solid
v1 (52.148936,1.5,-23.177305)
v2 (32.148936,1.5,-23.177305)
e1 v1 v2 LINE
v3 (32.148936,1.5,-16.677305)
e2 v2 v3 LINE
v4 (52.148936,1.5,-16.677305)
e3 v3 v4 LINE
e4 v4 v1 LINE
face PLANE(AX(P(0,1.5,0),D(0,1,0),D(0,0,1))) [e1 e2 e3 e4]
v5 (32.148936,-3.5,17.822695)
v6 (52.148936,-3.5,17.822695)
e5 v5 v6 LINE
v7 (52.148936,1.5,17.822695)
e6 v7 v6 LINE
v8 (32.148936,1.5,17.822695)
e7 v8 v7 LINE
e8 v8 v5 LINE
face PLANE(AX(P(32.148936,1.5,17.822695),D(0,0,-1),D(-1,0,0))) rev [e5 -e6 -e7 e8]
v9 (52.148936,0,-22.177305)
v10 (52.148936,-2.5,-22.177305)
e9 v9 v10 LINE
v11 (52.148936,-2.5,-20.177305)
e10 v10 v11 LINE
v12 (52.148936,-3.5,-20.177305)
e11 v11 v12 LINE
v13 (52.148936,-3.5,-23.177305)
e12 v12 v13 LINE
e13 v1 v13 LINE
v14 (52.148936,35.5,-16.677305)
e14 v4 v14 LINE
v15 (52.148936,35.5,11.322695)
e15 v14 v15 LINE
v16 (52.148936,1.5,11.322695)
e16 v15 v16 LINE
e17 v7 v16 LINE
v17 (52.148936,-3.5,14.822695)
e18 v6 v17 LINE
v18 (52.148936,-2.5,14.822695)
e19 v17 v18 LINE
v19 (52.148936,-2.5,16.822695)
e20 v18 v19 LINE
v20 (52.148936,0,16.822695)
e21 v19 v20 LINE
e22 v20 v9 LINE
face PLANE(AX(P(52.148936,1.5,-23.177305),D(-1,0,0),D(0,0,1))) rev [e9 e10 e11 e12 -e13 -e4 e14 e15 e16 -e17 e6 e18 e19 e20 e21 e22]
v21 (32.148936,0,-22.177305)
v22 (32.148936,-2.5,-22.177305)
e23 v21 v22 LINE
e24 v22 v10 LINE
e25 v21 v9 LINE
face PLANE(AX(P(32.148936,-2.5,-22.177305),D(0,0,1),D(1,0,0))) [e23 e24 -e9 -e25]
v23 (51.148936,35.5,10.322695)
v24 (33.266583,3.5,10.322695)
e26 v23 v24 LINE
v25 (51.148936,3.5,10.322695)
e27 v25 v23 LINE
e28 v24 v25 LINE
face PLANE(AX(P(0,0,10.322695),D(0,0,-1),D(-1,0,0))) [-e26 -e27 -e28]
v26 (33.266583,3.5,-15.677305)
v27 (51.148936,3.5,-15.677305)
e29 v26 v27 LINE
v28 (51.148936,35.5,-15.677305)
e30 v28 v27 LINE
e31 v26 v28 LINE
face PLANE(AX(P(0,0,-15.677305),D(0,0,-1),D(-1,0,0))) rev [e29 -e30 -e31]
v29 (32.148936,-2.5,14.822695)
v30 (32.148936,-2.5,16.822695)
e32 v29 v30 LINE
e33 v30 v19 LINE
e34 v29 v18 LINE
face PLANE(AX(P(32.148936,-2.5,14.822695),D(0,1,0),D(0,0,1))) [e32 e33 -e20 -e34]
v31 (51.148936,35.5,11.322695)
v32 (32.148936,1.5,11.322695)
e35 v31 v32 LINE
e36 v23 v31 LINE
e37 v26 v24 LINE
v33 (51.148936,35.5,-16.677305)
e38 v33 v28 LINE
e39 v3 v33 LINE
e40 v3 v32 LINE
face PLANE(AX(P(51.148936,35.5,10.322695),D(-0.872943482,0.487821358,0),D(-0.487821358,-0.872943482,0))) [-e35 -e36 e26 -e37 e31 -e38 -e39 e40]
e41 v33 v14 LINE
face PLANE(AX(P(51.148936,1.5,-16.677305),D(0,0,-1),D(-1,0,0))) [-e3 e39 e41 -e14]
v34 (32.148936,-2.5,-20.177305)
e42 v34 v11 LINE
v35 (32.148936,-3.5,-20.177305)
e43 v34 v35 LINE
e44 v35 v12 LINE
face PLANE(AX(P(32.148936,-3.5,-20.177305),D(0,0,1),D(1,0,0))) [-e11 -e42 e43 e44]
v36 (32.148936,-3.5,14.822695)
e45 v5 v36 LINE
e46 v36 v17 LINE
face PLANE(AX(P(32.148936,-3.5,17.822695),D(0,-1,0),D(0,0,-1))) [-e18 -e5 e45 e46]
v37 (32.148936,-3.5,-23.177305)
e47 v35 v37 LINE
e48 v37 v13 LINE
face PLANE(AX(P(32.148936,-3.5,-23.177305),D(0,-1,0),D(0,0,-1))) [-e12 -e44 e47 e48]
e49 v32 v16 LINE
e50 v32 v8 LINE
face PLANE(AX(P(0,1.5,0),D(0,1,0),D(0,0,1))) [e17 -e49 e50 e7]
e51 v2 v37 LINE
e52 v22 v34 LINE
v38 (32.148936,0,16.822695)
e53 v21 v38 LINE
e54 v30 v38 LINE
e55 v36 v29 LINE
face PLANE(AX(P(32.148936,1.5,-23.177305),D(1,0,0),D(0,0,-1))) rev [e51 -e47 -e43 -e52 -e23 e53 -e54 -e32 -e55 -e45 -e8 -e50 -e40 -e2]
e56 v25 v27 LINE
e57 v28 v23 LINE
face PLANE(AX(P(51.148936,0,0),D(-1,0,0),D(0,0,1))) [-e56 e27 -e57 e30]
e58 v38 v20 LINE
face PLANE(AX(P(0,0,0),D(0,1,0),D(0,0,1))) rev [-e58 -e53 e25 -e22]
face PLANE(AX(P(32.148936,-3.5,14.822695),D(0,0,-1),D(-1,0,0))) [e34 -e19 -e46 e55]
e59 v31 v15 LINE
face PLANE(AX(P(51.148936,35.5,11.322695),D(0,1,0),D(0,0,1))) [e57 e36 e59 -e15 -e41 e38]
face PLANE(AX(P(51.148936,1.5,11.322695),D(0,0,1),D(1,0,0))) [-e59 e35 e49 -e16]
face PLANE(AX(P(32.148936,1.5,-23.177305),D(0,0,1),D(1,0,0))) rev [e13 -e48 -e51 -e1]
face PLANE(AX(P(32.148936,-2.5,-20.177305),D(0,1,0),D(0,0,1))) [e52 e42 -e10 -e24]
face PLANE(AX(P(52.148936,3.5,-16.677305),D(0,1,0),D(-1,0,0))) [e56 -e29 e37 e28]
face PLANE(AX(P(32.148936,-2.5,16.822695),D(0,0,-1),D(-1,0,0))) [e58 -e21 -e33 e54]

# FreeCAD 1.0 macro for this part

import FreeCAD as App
import Part
import Sketcher

V = App.Vector


def add_polygon(sketch, points):
    """Adds a closed chain of lines whose ends are joined by coincident constraints."""
    first, n = sketch.GeometryCount, len(points)
    for a, b in zip(points, points[1:] + points[:1]):
        sketch.addGeometry(Part.LineSegment(App.Vector(*a, 0), App.Vector(*b, 0)), False)
    for i in range(n):
        sketch.addConstraint(Sketcher.Constraint("Coincident", first + i, 2, first + (i + 1) % n, 1))

doc = App.newDocument("Part")
body = doc.addObject("PartDesign::Body", "Body")

sketch1 = body.newObject("Sketcher::SketchObject", "Sketch")
sketch1.AttachmentSupport = (doc.getObject("XZ_Plane"), [""])
sketch1.MapMode = "FlatFace"
add_polygon(sketch1, [(32, -23), (32, 18), (52, 18), (52, -23)])
sketch1.addConstraint(Sketcher.Constraint("Vertical", 0))
sketch1.addConstraint(Sketcher.Constraint("Horizontal", 1))
sketch1.addConstraint(Sketcher.Constraint("Vertical", 2))
sketch1.addConstraint(Sketcher.Constraint("Horizontal", 3))
sketch1.addConstraint(Sketcher.Constraint("DistanceX", 1, 1, 1, 2, 20.0))
sketch1.addConstraint(Sketcher.Constraint("DistanceY", 0, 1, 0, 2, 41.0))
sketch1.addConstraint(Sketcher.Constraint("DistanceX", -1, 1, 0, 2, 32.148936))
sketch1.addConstraint(Sketcher.Constraint("DistanceY", -1, 1, 0, 2, 17.822695))
pad1 = body.newObject("PartDesign::Pad", "Pad")
pad1.Profile = sketch1
pad1.Length = 1.5
pad1.Reversed = True

sketch2 = body.newObject("Sketcher::SketchObject", "Sketch001")
sketch2.AttachmentSupport = (doc.getObject("YZ_Plane"), [""])
sketch2.MapMode = "FlatFace"
sketch2.AttachmentOffset = App.Placement(V(0, 0, 52.148936), App.Rotation())
add_polygon(sketch2, [(0, 17.8), (-3.5, 17.8), (-3.5, 14.8), (-2.5, 14.8), (-2.5, 16.8), (0, 16.8)])
add_polygon(sketch2, [(0, -22.2), (-2.5, -22.2), (-2.5, -20.2), (-3.5, -20.2), (-3.5, -23.2), (0, -23.2)])
sketch2.addConstraint(Sketcher.Constraint("Horizontal", 0))
sketch2.addConstraint(Sketcher.Constraint("Vertical", 1))
sketch2.addConstraint(Sketcher.Constraint("Horizontal", 2))
sketch2.addConstraint(Sketcher.Constraint("Vertical", 3))
sketch2.addConstraint(Sketcher.Constraint("Horizontal", 4))
sketch2.addConstraint(Sketcher.Constraint("Vertical", 5))
sketch2.addConstraint(Sketcher.Constraint("Horizontal", 6))
sketch2.addConstraint(Sketcher.Constraint("Vertical", 7))
sketch2.addConstraint(Sketcher.Constraint("Horizontal", 8))
sketch2.addConstraint(Sketcher.Constraint("Vertical", 9))
sketch2.addConstraint(Sketcher.Constraint("Horizontal", 10))
sketch2.addConstraint(Sketcher.Constraint("Vertical", 11))
sketch2.addConstraint(Sketcher.Constraint("PointOnObject", 4, 2, -2))
sketch2.addConstraint(Sketcher.Constraint("PointOnObject", 10, 2, -2))
sketch2.addConstraint(Sketcher.Constraint("Vertical", 3, 2, 6, 2))
sketch2.addConstraint(Sketcher.Constraint("Vertical", 1, 2, 8, 2))
sketch2.addConstraint(Sketcher.Constraint("Equal", 8, 5))
sketch2.addConstraint(Sketcher.Constraint("Equal", 3, 7))
sketch2.addConstraint(Sketcher.Constraint("Equal", 1, 9))
sketch2.addConstraint(Sketcher.Constraint("DistanceX", 2, 1, 2, 2, 1.0))
sketch2.addConstraint(Sketcher.Constraint("DistanceY", 1, 2, 1, 1, 3.0))
sketch2.addConstraint(Sketcher.Constraint("DistanceX", 0, 2, 0, 1, 3.5))
sketch2.addConstraint(Sketcher.Constraint("DistanceY", 6, 2, 2, 2, 37.0))
sketch2.addConstraint(Sketcher.Constraint("DistanceY", -1, 1, 0, 2, 17.822695))
pad2 = body.newObject("PartDesign::Pad", "Pad001")
pad2.Profile = sketch2
pad2.Length = 20
pad2.Reversed = True

sketch3 = body.newObject("Sketcher::SketchObject", "Sketch002")
sketch3.AttachmentSupport = (doc.getObject("YZ_Plane"), [""])
sketch3.MapMode = "FlatFace"
sketch3.AttachmentOffset = App.Placement(V(0, 0, 52.148936), App.Rotation())
add_polygon(sketch3, [(36, 11), (2, 11), (2, -17), (36, -17)])
sketch3.addConstraint(Sketcher.Constraint("Horizontal", 0))
sketch3.addConstraint(Sketcher.Constraint("Vertical", 1))
sketch3.addConstraint(Sketcher.Constraint("Horizontal", 2))
sketch3.addConstraint(Sketcher.Constraint("Vertical", 3))
sketch3.addConstraint(Sketcher.Constraint("DistanceX", 0, 2, 0, 1, 34.0))
sketch3.addConstraint(Sketcher.Constraint("DistanceY", 1, 2, 1, 1, 28.0))
sketch3.addConstraint(Sketcher.Constraint("DistanceX", -1, 1, 0, 2, 1.5))
sketch3.addConstraint(Sketcher.Constraint("DistanceY", -1, 1, 0, 2, 11.322695))
pad3 = body.newObject("PartDesign::Pad", "Pad002")
pad3.Profile = sketch3
pad3.Length = 1
pad3.Reversed = True

sketch4 = body.newObject("Sketcher::SketchObject", "Sketch003")
sketch4.AttachmentSupport = (doc.getObject("XY_Plane"), [""])
sketch4.MapMode = "FlatFace"
sketch4.AttachmentOffset = App.Placement(V(0, 0, 11.322695), App.Rotation())
add_polygon(sketch4, [(51, 36), (32, 2), (51, 2)])
sketch4.addConstraint(Sketcher.Constraint("Horizontal", 1))
sketch4.addConstraint(Sketcher.Constraint("Vertical", 2))
sketch4.addConstraint(Sketcher.Constraint("DistanceX", 1, 1, 1, 2, 19.0))
sketch4.addConstraint(Sketcher.Constraint("DistanceY", 2, 1, 2, 2, 34.0))
sketch4.addConstraint(Sketcher.Constraint("DistanceY", -1, 1, 0, 2, 1.5))
sketch4.addConstraint(Sketcher.Constraint("DistanceX", -1, 1, 0, 2, 32.148936))
pad4 = body.newObject("PartDesign::Pad", "Pad003")
pad4.Profile = sketch4
pad4.Length = 1
pad4.Reversed = True

sketch5 = body.newObject("Sketcher::SketchObject", "Sketch004")
sketch5.AttachmentSupport = (doc.getObject("XY_Plane"), [""])
sketch5.MapMode = "FlatFace"
sketch5.AttachmentOffset = App.Placement(V(0, 0, -16.677305), App.Rotation())
add_polygon(sketch5, [(32, 2), (51, 36), (51, 2)])
sketch5.addConstraint(Sketcher.Constraint("Vertical", 1))
sketch5.addConstraint(Sketcher.Constraint("Horizontal", 2))
sketch5.addConstraint(Sketcher.Constraint("DistanceX", 2, 2, 2, 1, 19.0))
sketch5.addConstraint(Sketcher.Constraint("DistanceY", 1, 2, 1, 1, 34.0))
sketch5.addConstraint(Sketcher.Constraint("DistanceY", -1, 1, 0, 2, 35.5))
sketch5.addConstraint(Sketcher.Constraint("DistanceX", -1, 1, 0, 2, 51.148936))
pad5 = body.newObject("PartDesign::Pad", "Pad004")
pad5.Profile = sketch5
pad5.Length = 1

sketch6 = body.newObject("Sketcher::SketchObject", "Sketch005")
sketch6.AttachmentSupport = (doc.getObject("XY_Plane"), [""])
sketch6.MapMode = "FlatFace"
sketch6.AttachmentOffset = App.Placement(V(0, 0, 11.322695), App.Rotation())
add_polygon(sketch6, [(52.1, 1.5), (52.1, 3.5), (33.3, 3.5), (32.1, 1.5)])
sketch6.addConstraint(Sketcher.Constraint("Vertical", 0))
sketch6.addConstraint(Sketcher.Constraint("Horizontal", 1))
sketch6.addConstraint(Sketcher.Constraint("Horizontal", 3))
sketch6.addConstraint(Sketcher.Constraint("DistanceX", 3, 1, 3, 2, 20.0))
sketch6.addConstraint(Sketcher.Constraint("DistanceY", 0, 1, 0, 2, 2.0))
sketch6.addConstraint(Sketcher.Constraint("DistanceY", -1, 1, 0, 2, 3.5))
sketch6.addConstraint(Sketcher.Constraint("Distance", 2, 2.291099))
sketch6.addConstraint(Sketcher.Constraint("DistanceX", -1, 1, 0, 2, 52.148936))
pad6 = body.newObject("PartDesign::Pad", "Pad005")
pad6.Profile = sketch6
pad6.Length = 28
pad6.Reversed = True

doc.recompute()
